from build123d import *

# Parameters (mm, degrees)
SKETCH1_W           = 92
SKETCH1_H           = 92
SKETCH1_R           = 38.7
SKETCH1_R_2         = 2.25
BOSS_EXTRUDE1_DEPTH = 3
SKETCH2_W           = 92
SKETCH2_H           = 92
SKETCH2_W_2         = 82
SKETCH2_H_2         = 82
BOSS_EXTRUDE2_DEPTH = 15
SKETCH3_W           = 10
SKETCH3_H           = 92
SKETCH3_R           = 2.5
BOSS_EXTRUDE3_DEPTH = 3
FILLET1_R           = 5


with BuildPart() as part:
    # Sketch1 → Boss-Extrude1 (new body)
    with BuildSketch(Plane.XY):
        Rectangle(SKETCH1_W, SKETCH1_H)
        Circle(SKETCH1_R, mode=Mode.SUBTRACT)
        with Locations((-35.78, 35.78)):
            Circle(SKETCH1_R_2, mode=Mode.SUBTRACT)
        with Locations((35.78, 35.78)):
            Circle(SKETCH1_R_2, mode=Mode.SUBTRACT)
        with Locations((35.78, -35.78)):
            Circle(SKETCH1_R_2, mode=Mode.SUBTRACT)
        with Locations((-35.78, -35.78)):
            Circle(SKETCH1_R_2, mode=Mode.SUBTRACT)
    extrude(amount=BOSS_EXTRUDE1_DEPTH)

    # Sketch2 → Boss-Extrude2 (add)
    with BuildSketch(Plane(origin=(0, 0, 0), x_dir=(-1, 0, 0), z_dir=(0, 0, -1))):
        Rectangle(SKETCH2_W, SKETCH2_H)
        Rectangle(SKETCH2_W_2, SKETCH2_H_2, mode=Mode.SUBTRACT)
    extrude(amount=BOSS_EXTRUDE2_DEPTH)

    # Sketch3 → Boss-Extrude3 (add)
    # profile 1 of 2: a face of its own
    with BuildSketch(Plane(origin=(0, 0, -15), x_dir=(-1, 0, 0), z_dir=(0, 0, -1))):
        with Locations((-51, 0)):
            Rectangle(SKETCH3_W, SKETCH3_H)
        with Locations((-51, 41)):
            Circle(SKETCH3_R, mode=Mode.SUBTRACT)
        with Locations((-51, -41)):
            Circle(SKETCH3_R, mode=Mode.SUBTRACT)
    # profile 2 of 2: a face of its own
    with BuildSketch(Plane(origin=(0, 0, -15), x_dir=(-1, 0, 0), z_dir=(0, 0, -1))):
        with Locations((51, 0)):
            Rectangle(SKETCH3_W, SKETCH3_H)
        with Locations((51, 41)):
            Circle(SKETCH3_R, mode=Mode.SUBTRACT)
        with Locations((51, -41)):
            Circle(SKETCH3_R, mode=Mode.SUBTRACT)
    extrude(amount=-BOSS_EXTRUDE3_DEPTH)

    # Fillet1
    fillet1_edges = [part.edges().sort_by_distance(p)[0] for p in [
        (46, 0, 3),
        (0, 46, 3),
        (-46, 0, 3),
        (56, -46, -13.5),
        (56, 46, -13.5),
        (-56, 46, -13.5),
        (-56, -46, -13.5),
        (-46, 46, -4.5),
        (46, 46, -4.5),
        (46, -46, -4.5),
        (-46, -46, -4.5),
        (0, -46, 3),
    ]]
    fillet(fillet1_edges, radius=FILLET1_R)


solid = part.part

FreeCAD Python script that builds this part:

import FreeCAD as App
import Part
import Sketcher

V = App.Vector
Q = App.Units.Quantity


def edges_at(feature, points):
    """Names of the edges that pass closest to the given points."""
    edges = feature.Shape.Edges
    near = lambda p: min(range(len(edges)), key=lambda i: edges[i].distToShape(Part.Vertex(*p))[0])
    return sorted({f"Edge{near(p) + 1}" for p in points})

doc = App.newDocument("Part")
params = doc.addObject("Spreadsheet::Sheet", "Params")
for row, (alias, value) in enumerate([
    ("sketch1_diameter", "4.5 mm"),
    ("sketch1_diameter2", "77.4 mm"),
    ("sketch1_width", "92 mm"),
    ("pad1_length", "3 mm"),
    ("sketch2_width", "92 mm"),
    ("sketch2_width2", "82 mm"),
    ("pad2_length", "15 mm"),
    ("sketch3_diameter", "5 mm"),
    ("sketch3_width", "10 mm"),
    ("sketch3_height", "92 mm"),
    ("pad3_length", "3 mm"),
    ("fillet_radius", "5 mm"),
], start=1):
    params.set(f"A{row}", alias)
    params.set(f"B{row}", "=" + value)
    params.setAlias(f"B{row}", alias)

body = doc.addObject("PartDesign::Body", "Body")

sketch1 = doc.addObject("Sketcher::SketchObject", "Sketch")
body.addObject(sketch1)
sketch1.AttachmentSupport = (doc.XY_Plane, [""])
sketch1.MapMode = "FlatFace"
sketch1.addGeometry([
    Part.LineSegment(V(-46, 46, 0), V(-46, -46, 0)),
    Part.LineSegment(V(-46, -46, 0), V(46, -46, 0)),
    Part.LineSegment(V(46, -46, 0), V(46, 46, 0)),
    Part.LineSegment(V(46, 46, 0), V(-46, 46, 0)),
    Part.Circle(V(-35.8, -35.8, 0), V(0, 0, 1), 2.2),
    Part.Circle(V(35.8, -35.8, 0), V(0, 0, 1), 2.2),
    Part.Circle(V(-35.8, 35.8, 0), V(0, 0, 1), 2.2),
    Part.Circle(V(0, 0, 0), V(0, 0, 1), 38.7),
    Part.Circle(V(35.8, 35.8, 0), V(0, 0, 1), 2.2),
], False)
sketch1.addConstraint([
    Sketcher.Constraint("Coincident", 0, 2, 1, 1),
    Sketcher.Constraint("Coincident", 1, 2, 2, 1),
    Sketcher.Constraint("Coincident", 2, 2, 3, 1),
    Sketcher.Constraint("Coincident", 3, 2, 0, 1),
    Sketcher.Constraint("Vertical", 0),
    Sketcher.Constraint("Horizontal", 1),
    Sketcher.Constraint("Vertical", 2),
    Sketcher.Constraint("Horizontal", 3),
    Sketcher.Constraint("Coincident", 7, 3, -1, 1),
    Sketcher.Constraint("Equal", 4, 5),
    Sketcher.Constraint("Equal", 5, 6),
    Sketcher.Constraint("Equal", 6, 8),
    Sketcher.Constraint("Symmetric", 5, 3, 6, 3, -1, 1),
    Sketcher.Constraint("Symmetric", 4, 3, 8, 3, -1, 1),
    Sketcher.Constraint("Symmetric", 0, 2, 2, 2, -1, 1),
    Sketcher.Constraint("Symmetric", 4, 3, 5, 3, -2),
    Sketcher.Constraint("Equal", 3, 0),
    Sketcher.Constraint("Diameter", 4, Q("4.5 mm")),
    Sketcher.Constraint("Diameter", 7, Q("77.4 mm")),
    Sketcher.Constraint("DistanceX", 1, 1, 1, 2, Q("92 mm")),
    Sketcher.Constraint("DistanceX", 4, 3, -1, 1, Q("35.78 mm")),
    Sketcher.Constraint("DistanceY", 4, 3, -1, 1, Q("35.78 mm")),
])
sketch1.setExpression("Constraints[17]", "Params.sketch1_diameter")
sketch1.setExpression("Constraints[18]", "Params.sketch1_diameter2")
sketch1.setExpression("Constraints[19]", "Params.sketch1_width")
pad1 = doc.addObject("PartDesign::Pad", "Pad")
body.addObject(pad1)
pad1.Profile = sketch1
pad1.setExpression("Length", "Params.pad1_length")

sketch2 = doc.addObject("Sketcher::SketchObject", "Sketch001")
body.addObject(sketch2)
sketch2.AttachmentSupport = (doc.XY_Plane, [""])
sketch2.MapMode = "FlatFace"
sketch2.addGeometry([
    Part.LineSegment(V(46, 46, 0), V(46, -46, 0)),
    Part.LineSegment(V(46, -46, 0), V(-46, -46, 0)),
    Part.LineSegment(V(-46, -46, 0), V(-46, 46, 0)),
    Part.LineSegment(V(-46, 46, 0), V(46, 46, 0)),
    Part.LineSegment(V(-41, -41, 0), V(41, -41, 0)),
    Part.LineSegment(V(41, -41, 0), V(41, 41, 0)),
    Part.LineSegment(V(41, 41, 0), V(-41, 41, 0)),
    Part.LineSegment(V(-41, 41, 0), V(-41, -41, 0)),
], False)
sketch2.addConstraint([
    Sketcher.Constraint("Coincident", 0, 2, 1, 1),
    Sketcher.Constraint("Coincident", 1, 2, 2, 1),
    Sketcher.Constraint("Coincident", 2, 2, 3, 1),
    Sketcher.Constraint("Coincident", 3, 2, 0, 1),
    Sketcher.Constraint("Coincident", 4, 2, 5, 1),
    Sketcher.Constraint("Coincident", 5, 2, 6, 1),
    Sketcher.Constraint("Coincident", 6, 2, 7, 1),
    Sketcher.Constraint("Coincident", 7, 2, 4, 1),
    Sketcher.Constraint("Vertical", 0),
    Sketcher.Constraint("Horizontal", 1),
    Sketcher.Constraint("Vertical", 2),
    Sketcher.Constraint("Horizontal", 3),
    Sketcher.Constraint("Horizontal", 4),
    Sketcher.Constraint("Vertical", 5),
    Sketcher.Constraint("Horizontal", 6),
    Sketcher.Constraint("Vertical", 7),
    Sketcher.Constraint("Symmetric", 0, 2, 2, 2, -1, 1),
    Sketcher.Constraint("Symmetric", 4, 2, 6, 2, -1, 1),
    Sketcher.Constraint("Equal", 3, 0),
    Sketcher.Constraint("Equal", 6, 5),
    Sketcher.Constraint("DistanceX", 1, 2, 1, 1, Q("92 mm")),
    Sketcher.Constraint("DistanceX", 4, 1, 4, 2, Q("82 mm")),
])
sketch2.setExpression("Constraints[20]", "Params.sketch2_width")
sketch2.setExpression("Constraints[21]", "Params.sketch2_width2")
pad2 = doc.addObject("PartDesign::Pad", "Pad001")
body.addObject(pad2)
pad2.Profile = sketch2
pad2.setExpression("Length", "Params.pad2_length")
pad2.Reversed = True

sketch3 = doc.addObject("Sketcher::SketchObject", "Sketch002")
body.addObject(sketch3)
sketch3.AttachmentSupport = (doc.XY_Plane, [""])
sketch3.MapMode = "FlatFace"
sketch3.AttachmentOffset = App.Placement(V(0, 0, -15), App.Rotation())
sketch3.addGeometry([
    Part.LineSegment(V(56, 46, 0), V(56, -46, 0)),
    Part.LineSegment(V(56, -46, 0), V(46, -46, 0)),
    Part.LineSegment(V(46, -46, 0), V(46, 46, 0)),
    Part.LineSegment(V(46, 46, 0), V(56, 46, 0)),
    Part.Circle(V(51, -41, 0), V(0, 0, 1), 2.5),
    Part.Circle(V(51, 41, 0), V(0, 0, 1), 2.5),
    Part.LineSegment(V(-46, 46, 0), V(-46, -46, 0)),
    Part.LineSegment(V(-46, -46, 0), V(-56, -46, 0)),
    Part.LineSegment(V(-56, -46, 0), V(-56, 46, 0)),
    Part.LineSegment(V(-56, 46, 0), V(-46, 46, 0)),
    Part.Circle(V(-51, -41, 0), V(0, 0, 1), 2.5),
    Part.Circle(V(-51, 41, 0), V(0, 0, 1), 2.5),
], False)
sketch3.addConstraint([
    Sketcher.Constraint("Coincident", 0, 2, 1, 1),
    Sketcher.Constraint("Coincident", 1, 2, 2, 1),
    Sketcher.Constraint("Coincident", 2, 2, 3, 1),
    Sketcher.Constraint("Coincident", 3, 2, 0, 1),
    Sketcher.Constraint("Coincident", 6, 2, 7, 1),
    Sketcher.Constraint("Coincident", 7, 2, 8, 1),
    Sketcher.Constraint("Coincident", 8, 2, 9, 1),
    Sketcher.Constraint("Coincident", 9, 2, 6, 1),
    Sketcher.Constraint("Vertical", 0),
    Sketcher.Constraint("Horizontal", 1),
    Sketcher.Constraint("Vertical", 2),
    Sketcher.Constraint("Horizontal", 3),
    Sketcher.Constraint("Vertical", 6),
    Sketcher.Constraint("Horizontal", 7),
    Sketcher.Constraint("Vertical", 8),
    Sketcher.Constraint("Horizontal", 9),
    Sketcher.Constraint("Equal", 4, 5),
    Sketcher.Constraint("Equal", 5, 10),
    Sketcher.Constraint("Equal", 10, 11),
    Sketcher.Constraint("Symmetric", 5, 3, 10, 3, -1, 1),
    Sketcher.Constraint("Symmetric", 4, 3, 11, 3, -1, 1),
    Sketcher.Constraint("Symmetric", 2, 2, 6, 2, -1, 1),
    Sketcher.Constraint("Symmetric", 0, 2, 8, 2, -1, 1),
    Sketcher.Constraint("Symmetric", 4, 3, 10, 3, -2),
    Sketcher.Constraint("Horizontal", 1, 2, 6, 2),
    Sketcher.Constraint("Diameter", 4, Q("5 mm")),
    Sketcher.Constraint("DistanceX", 1, 2, 1, 1, Q("10 mm")),
    Sketcher.Constraint("DistanceY", 0, 2, 0, 1, Q("92 mm")),
    Sketcher.Constraint("DistanceX", -1, 1, 4, 3, Q("51 mm")),
    Sketcher.Constraint("DistanceY", 4, 3, -1, 1, Q("41 mm")),
    Sketcher.Constraint("DistanceX", -1, 1, 0, 2, Q("56 mm")),
])
sketch3.setExpression("Constraints[25]", "Params.sketch3_diameter")
sketch3.setExpression("Constraints[26]", "Params.sketch3_width")
sketch3.setExpression("Constraints[27]", "Params.sketch3_height")
pad3 = doc.addObject("PartDesign::Pad", "Pad002")
body.addObject(pad3)
pad3.Profile = sketch3
pad3.setExpression("Length", "Params.pad3_length")
doc.recompute()

fillet = doc.addObject("PartDesign::Fillet", "Fillet")
body.addObject(fillet)
fillet.Base = (pad3, edges_at(pad3, [
    (46, 0, 3),
    (0, 46, 3),
    (-46, 0, 3),
    (56, -46, -13.5),
    (56, 46, -13.5),
    (-56, 46, -13.5),
    (-56, -46, -13.5),
    (-46, 46, -4.5),
    (46, 46, -4.5),
    (46, -46, -4.5),
    (-46, -46, -4.5),
    (0, -46, 3),
]))
fillet.setExpression("Radius", "Params.fillet_radius")

doc.recompute()
